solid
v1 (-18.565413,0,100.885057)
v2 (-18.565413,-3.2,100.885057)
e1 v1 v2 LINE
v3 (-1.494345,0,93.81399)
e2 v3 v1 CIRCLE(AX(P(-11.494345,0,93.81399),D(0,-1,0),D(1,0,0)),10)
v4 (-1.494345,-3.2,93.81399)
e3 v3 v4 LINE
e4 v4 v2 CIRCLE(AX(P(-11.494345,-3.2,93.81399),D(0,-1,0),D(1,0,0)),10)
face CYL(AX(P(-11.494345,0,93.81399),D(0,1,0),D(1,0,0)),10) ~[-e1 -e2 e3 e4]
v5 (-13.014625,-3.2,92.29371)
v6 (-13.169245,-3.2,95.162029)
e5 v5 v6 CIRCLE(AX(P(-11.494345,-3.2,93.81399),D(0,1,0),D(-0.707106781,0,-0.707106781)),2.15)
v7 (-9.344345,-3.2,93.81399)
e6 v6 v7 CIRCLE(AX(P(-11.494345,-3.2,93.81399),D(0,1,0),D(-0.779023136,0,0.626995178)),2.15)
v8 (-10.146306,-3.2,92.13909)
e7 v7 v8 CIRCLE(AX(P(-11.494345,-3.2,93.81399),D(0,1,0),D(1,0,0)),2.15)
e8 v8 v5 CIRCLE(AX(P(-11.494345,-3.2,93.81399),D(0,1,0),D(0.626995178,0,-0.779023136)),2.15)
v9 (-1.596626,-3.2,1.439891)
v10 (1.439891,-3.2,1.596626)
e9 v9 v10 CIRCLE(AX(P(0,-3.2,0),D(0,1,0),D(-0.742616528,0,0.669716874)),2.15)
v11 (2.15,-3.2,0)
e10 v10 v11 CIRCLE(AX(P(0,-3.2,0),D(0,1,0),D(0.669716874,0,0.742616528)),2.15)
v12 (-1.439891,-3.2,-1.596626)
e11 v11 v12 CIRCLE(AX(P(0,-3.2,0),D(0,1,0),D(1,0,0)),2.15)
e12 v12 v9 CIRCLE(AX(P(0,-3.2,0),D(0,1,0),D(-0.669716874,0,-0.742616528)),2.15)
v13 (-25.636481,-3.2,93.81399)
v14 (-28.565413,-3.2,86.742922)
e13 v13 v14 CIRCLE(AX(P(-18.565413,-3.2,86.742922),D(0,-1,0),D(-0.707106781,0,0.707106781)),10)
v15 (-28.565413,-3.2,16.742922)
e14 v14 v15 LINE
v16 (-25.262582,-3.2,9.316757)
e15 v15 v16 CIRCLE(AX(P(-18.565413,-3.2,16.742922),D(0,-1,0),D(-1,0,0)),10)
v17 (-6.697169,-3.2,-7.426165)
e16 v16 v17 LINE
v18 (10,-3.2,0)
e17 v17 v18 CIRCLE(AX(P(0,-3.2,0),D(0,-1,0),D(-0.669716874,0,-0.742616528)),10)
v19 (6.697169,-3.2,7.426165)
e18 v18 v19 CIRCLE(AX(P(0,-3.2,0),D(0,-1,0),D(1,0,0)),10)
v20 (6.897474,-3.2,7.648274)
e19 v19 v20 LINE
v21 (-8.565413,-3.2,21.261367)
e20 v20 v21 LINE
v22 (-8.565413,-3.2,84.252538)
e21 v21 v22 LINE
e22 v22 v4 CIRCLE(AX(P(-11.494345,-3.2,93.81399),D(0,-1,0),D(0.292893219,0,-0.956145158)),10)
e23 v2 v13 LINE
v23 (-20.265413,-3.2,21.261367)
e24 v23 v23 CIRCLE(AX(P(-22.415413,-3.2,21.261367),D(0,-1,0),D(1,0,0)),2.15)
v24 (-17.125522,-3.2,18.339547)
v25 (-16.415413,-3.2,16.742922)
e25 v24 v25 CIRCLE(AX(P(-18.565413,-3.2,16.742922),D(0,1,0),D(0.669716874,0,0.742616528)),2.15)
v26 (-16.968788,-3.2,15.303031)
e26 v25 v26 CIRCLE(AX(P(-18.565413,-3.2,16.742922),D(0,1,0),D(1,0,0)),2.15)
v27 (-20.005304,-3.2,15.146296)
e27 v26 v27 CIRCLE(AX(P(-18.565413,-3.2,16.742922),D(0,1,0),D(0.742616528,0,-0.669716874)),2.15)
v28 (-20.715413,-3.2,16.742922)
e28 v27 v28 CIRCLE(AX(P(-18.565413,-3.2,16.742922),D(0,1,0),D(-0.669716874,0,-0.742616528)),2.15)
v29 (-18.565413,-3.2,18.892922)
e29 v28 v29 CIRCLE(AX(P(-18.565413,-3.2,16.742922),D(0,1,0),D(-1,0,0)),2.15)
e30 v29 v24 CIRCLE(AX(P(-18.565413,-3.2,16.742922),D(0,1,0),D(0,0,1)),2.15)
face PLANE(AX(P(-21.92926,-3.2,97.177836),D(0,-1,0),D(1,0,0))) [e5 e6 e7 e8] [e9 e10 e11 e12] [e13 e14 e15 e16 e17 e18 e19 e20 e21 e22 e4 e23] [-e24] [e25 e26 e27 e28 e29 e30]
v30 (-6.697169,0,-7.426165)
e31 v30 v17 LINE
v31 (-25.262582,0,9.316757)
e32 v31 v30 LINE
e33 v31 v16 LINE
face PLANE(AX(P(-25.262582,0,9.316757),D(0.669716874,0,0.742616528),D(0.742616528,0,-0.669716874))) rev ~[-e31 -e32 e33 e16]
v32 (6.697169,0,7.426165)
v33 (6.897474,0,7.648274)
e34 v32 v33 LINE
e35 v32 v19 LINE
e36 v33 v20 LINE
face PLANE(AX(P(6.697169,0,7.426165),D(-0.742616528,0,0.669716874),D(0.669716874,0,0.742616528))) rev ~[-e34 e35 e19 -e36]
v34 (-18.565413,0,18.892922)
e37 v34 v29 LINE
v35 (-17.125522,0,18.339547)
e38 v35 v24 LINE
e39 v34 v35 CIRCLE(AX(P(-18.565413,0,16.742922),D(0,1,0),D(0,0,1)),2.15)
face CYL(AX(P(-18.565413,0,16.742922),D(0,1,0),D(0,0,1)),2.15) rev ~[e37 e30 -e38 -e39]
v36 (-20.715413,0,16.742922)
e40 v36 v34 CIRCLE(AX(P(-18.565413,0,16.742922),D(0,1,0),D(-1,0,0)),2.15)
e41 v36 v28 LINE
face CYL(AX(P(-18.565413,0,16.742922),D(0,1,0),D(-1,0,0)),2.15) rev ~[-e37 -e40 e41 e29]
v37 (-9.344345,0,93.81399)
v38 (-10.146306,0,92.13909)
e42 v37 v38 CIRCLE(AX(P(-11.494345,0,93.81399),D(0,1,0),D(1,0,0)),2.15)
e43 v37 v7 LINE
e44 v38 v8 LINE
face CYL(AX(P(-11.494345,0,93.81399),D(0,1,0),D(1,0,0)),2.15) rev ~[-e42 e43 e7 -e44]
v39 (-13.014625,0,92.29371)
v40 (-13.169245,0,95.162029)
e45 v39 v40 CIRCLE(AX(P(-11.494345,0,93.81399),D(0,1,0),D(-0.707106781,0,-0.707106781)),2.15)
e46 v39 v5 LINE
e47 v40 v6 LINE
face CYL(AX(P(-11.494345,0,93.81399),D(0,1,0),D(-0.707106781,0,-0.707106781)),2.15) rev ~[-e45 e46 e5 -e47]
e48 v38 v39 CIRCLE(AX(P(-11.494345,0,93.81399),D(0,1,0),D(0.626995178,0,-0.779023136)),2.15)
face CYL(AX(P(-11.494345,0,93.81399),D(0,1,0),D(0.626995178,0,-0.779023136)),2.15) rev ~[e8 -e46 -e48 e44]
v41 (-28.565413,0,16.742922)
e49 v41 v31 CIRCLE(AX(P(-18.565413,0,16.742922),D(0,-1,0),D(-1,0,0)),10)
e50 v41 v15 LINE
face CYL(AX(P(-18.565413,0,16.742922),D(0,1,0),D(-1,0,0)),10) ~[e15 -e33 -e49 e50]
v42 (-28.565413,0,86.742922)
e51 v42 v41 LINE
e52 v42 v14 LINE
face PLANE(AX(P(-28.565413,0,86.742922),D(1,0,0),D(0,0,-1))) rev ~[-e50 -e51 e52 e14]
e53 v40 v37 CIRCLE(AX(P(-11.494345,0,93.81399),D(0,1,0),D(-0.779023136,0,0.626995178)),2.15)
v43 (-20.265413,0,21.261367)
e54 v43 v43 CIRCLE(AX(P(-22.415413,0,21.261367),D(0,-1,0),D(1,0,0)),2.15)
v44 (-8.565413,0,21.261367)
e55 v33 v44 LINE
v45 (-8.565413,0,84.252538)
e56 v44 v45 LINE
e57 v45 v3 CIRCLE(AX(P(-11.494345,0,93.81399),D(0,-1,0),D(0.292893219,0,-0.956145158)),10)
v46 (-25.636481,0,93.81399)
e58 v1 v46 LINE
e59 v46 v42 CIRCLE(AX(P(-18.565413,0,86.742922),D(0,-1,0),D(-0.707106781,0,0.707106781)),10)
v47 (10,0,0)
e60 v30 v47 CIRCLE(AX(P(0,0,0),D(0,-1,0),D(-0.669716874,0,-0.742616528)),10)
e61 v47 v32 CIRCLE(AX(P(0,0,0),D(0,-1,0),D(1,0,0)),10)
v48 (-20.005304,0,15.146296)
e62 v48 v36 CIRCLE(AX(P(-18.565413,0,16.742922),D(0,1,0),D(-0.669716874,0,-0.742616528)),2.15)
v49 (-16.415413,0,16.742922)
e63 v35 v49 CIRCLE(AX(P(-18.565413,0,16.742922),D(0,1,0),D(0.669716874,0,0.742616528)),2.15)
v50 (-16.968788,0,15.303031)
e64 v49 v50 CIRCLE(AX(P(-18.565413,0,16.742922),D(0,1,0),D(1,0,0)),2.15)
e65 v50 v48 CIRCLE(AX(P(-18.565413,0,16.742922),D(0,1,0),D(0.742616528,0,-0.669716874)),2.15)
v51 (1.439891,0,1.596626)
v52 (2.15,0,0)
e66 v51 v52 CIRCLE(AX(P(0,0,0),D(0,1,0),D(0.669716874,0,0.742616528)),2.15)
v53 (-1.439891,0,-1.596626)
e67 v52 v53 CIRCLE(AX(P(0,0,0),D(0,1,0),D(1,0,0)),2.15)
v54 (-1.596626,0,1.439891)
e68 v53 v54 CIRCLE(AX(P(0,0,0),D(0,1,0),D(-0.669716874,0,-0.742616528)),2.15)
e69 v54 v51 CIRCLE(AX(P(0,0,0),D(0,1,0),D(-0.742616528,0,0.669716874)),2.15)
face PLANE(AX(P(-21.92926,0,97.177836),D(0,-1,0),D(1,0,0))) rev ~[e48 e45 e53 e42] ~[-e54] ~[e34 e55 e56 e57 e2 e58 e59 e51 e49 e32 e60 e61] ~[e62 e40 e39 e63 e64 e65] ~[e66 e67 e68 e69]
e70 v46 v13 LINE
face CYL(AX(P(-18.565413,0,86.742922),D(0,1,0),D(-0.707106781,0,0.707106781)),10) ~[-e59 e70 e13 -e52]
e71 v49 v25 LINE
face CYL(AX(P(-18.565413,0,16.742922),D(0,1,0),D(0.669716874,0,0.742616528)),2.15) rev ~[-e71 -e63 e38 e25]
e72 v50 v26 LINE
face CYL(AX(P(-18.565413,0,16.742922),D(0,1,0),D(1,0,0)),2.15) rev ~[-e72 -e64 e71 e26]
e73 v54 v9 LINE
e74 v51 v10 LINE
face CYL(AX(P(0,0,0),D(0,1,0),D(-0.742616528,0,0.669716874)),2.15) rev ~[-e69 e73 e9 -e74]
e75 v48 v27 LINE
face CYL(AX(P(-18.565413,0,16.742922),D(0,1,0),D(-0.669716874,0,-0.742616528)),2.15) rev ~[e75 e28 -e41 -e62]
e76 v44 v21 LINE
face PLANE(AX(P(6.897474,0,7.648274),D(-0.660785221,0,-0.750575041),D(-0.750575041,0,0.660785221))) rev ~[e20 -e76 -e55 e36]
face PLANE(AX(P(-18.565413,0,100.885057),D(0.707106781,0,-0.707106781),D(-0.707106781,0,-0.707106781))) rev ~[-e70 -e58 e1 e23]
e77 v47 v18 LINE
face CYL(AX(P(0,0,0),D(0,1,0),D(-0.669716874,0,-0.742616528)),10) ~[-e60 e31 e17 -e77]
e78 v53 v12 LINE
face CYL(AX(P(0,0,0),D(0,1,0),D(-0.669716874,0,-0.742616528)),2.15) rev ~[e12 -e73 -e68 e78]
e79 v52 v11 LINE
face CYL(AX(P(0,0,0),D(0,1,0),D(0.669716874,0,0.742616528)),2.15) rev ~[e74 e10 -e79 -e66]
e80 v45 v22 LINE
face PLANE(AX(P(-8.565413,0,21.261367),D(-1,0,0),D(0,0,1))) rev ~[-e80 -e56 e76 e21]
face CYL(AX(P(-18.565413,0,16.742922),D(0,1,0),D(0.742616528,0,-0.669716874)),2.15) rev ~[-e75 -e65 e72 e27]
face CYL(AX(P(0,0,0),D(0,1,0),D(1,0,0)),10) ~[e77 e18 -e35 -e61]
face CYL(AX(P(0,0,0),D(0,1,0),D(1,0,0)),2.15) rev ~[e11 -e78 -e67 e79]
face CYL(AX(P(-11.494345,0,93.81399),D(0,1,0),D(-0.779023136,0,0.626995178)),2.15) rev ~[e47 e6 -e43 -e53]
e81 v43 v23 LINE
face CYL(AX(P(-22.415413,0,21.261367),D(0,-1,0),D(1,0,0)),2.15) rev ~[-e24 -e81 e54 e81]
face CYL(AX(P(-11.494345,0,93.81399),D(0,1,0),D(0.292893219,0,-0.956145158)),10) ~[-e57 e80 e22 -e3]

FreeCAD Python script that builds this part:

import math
import FreeCAD as App
import Part
import Sketcher

V = App.Vector

doc = App.newDocument("Part")
params = doc.addObject("Spreadsheet::Sheet", "Params")
for row, (alias, value) in enumerate([
    ("sketch1_radius", "10 mm"),
    ("sketch1_height", "70 mm"),
    ("sketch1_radius2", "2.15 mm"),
    ("sketch1_length", "25 mm"),
    ("pad1_length", "3.2 mm"),
    ("sketch2_diameter", "4.3 mm"),
    ("pocket1_length", "25 mm"),
], start=1):
    params.set(f"A{row}", alias)
    params.set(f"B{row}", "=" + value)
    params.setAlias(f"B{row}", alias)

body = doc.addObject("PartDesign::Body", "Body")

# Sketch on XZ plane
sketch1 = body.newObject("Sketcher::SketchObject", "Sketch")
sketch1.AttachmentSupport = (doc.getObject("XZ_Plane"), [""])
sketch1.MapMode = "FlatFace"
sketch1.addGeometry([
    Part.LineSegment(V(-18.565413, 100.885057, 0), V(-25.636481, 93.81399, 0)),  # 0
    Part.ArcOfCircle(Part.Circle(V(-18.565413, 86.742922, 0), V(0, 0, 1), 10), math.radians(135), math.radians(180)),  # 1
    Part.LineSegment(V(-28.565413, 86.742922, 0), V(-28.565413, 16.742922, 0)),  # 2
    Part.ArcOfCircle(Part.Circle(V(-18.565413, 16.742922, 0), V(0, 0, 1), 10), math.radians(180), math.radians(227.954783)),  # 3
    Part.LineSegment(V(-25.262582, 9.316757, 0), V(-6.697169, -7.426165, 0)),  # 4
    Part.ArcOfCircle(Part.Circle(V(0, 0, 0), V(0, 0, 1), 10), math.radians(-132.045217), math.radians(0)),  # 5
    Part.ArcOfCircle(Part.Circle(V(0, 0, 0), V(0, 0, 1), 10), math.radians(0), math.radians(47.954783)),  # 6
    Part.LineSegment(V(6.697169, 7.426165, 0), V(6.897474, 7.648274, 0)),  # 7
    Part.LineSegment(V(6.897474, 7.648274, 0), V(-8.565413, 21.261367, 0)),  # 8
    Part.LineSegment(V(-8.565413, 21.261367, 0), V(-8.565413, 84.252538, 0)),  # 9
    Part.ArcOfCircle(Part.Circle(V(-11.494345, 93.81399, 0), V(0, 0, 1), 10), math.radians(-72.968752), math.radians(0)),  # 10
    Part.ArcOfCircle(Part.Circle(V(-11.494345, 93.81399, 0), V(0, 0, 1), 10), math.radians(0), math.radians(135)),  # 11
    Part.ArcOfCircle(Part.Circle(V(-18.565413, 16.742922, 0), V(0, 0, 1), 2.15), math.radians(-132.045217), math.radians(-42.045217)),  # 12
    Part.ArcOfCircle(Part.Circle(V(-18.565413, 16.742922, 0), V(0, 0, 1), 2.15), math.radians(180), math.radians(227.954783)),  # 13
    Part.ArcOfCircle(Part.Circle(V(-18.565413, 16.742922, 0), V(0, 0, 1), 2.15), math.radians(90), math.radians(180)),  # 14
    Part.ArcOfCircle(Part.Circle(V(-18.565413, 16.742922, 0), V(0, 0, 1), 2.15), math.radians(47.954783), math.radians(90)),  # 15
    Part.ArcOfCircle(Part.Circle(V(-18.565413, 16.742922, 0), V(0, 0, 1), 2.15), math.radians(0), math.radians(47.954783)),  # 16
    Part.ArcOfCircle(Part.Circle(V(-18.565413, 16.742922, 0), V(0, 0, 1), 2.15), math.radians(-42.045217), math.radians(0)),  # 17
    Part.ArcOfCircle(Part.Circle(V(-11.494345, 93.81399, 0), V(0, 0, 1), 2.15), math.radians(141.171221), math.radians(225)),  # 18
    Part.ArcOfCircle(Part.Circle(V(-11.494345, 93.81399, 0), V(0, 0, 1), 2.15), math.radians(0), math.radians(141.171221)),  # 19
    Part.ArcOfCircle(Part.Circle(V(-11.494345, 93.81399, 0), V(0, 0, 1), 2.15), math.radians(-51.171221), math.radians(0)),  # 20
    Part.ArcOfCircle(Part.Circle(V(-11.494345, 93.81399, 0), V(0, 0, 1), 2.15), math.radians(-135), math.radians(-51.171221)),  # 21
    Part.ArcOfCircle(Part.Circle(V(0, 0, 0), V(0, 0, 1), 2.15), math.radians(-132.045217), math.radians(0)),  # 22
    Part.ArcOfCircle(Part.Circle(V(0, 0, 0), V(0, 0, 1), 2.15), math.radians(137.954783), math.radians(227.954783)),  # 23
    Part.ArcOfCircle(Part.Circle(V(0, 0, 0), V(0, 0, 1), 2.15), math.radians(47.954783), math.radians(137.954783)),  # 24
    Part.ArcOfCircle(Part.Circle(V(0, 0, 0), V(0, 0, 1), 2.15), math.radians(0), math.radians(47.954783)),  # 25
], False)
sketch1.addConstraint([
    Sketcher.Constraint("Tangent", 0, 2, 1, 1),
    Sketcher.Constraint("Tangent", 1, 2, 2, 1),
    Sketcher.Constraint("Tangent", 2, 2, 3, 1),
    Sketcher.Constraint("Tangent", 3, 2, 4, 1),
    Sketcher.Constraint("Tangent", 4, 2, 5, 1),
    Sketcher.Constraint("Tangent", 5, 2, 6, 1),
    Sketcher.Constraint("Coincident", 6, 2, 7, 1),
    Sketcher.Constraint("Coincident", 7, 2, 8, 1),
    Sketcher.Constraint("Coincident", 8, 2, 9, 1),
    Sketcher.Constraint("Coincident", 9, 2, 10, 1),
    Sketcher.Constraint("Tangent", 10, 2, 11, 1),
    Sketcher.Constraint("Tangent", 11, 2, 0, 1),
    Sketcher.Constraint("Tangent", 12, 1, 13, 2),
    Sketcher.Constraint("Tangent", 13, 1, 14, 2),
    Sketcher.Constraint("Tangent", 14, 1, 15, 2),
    Sketcher.Constraint("Tangent", 15, 1, 16, 2),
    Sketcher.Constraint("Tangent", 16, 1, 17, 2),
    Sketcher.Constraint("Tangent", 17, 1, 12, 2),
    Sketcher.Constraint("Tangent", 18, 1, 19, 2),
    Sketcher.Constraint("Tangent", 19, 1, 20, 2),
    Sketcher.Constraint("Tangent", 20, 1, 21, 2),
    Sketcher.Constraint("Tangent", 21, 1, 18, 2),
    Sketcher.Constraint("Tangent", 22, 1, 23, 2),
    Sketcher.Constraint("Tangent", 23, 1, 24, 2),
    Sketcher.Constraint("Tangent", 24, 1, 25, 2),
    Sketcher.Constraint("Tangent", 25, 1, 22, 2),
    Sketcher.Constraint("Vertical", 2),
    Sketcher.Constraint("Vertical", 9),
    Sketcher.Constraint("Coincident", 5, 3, -1, 1),
    Sketcher.Constraint("Coincident", 22, 3, -1, 1),
    Sketcher.Constraint("Coincident", 12, 3, 3, 3),
    Sketcher.Constraint("Coincident", 14, 3, 3, 3),
    Sketcher.Constraint("Coincident", 18, 3, 10, 3),
    Sketcher.Constraint("Equal", 1, 3),
    Sketcher.Constraint("Equal", 3, 5),
    Sketcher.Constraint("Equal", 5, 6),
    Sketcher.Constraint("Equal", 6, 10),
    Sketcher.Constraint("Equal", 10, 11),
    Sketcher.Constraint("Equal", 14, 15),
    Sketcher.Constraint("Equal", 17, 18),
    Sketcher.Constraint("Equal", 18, 19),
    Sketcher.Constraint("Equal", 21, 22),
    Sketcher.Constraint("Equal", 22, 23),
    Sketcher.Constraint("PointOnObject", 5, 2, -1),
    Sketcher.Constraint("PointOnObject", 25, 1, -1),
    Sketcher.Constraint("Perpendicular", 4, 7),
    Sketcher.Constraint("Horizontal", 21, 3, 0, 2),
    Sketcher.Constraint("Horizontal", 0, 2, 10, 2),
    Sketcher.Constraint("Horizontal", 2, 2, 13, 1),
    Sketcher.Constraint("Horizontal", 13, 1, 16, 1),
    Sketcher.Constraint("Horizontal", 10, 2, 19, 1),
    Sketcher.Constraint("Vertical", 17, 3, 11, 2),
    Sketcher.Constraint("Vertical", 11, 2, 14, 1),
    Sketcher.Constraint("Radius", 1, 10.0),
    Sketcher.Constraint("DistanceY", 2, 2, 2, 1, 70.0),
    Sketcher.Constraint("Radius", 12, 2.15),
    Sketcher.Constraint("Distance", 4, 25.0),
    Sketcher.Constraint("DistanceX", 16, 3, 8, 2, 10.0),
    Sketcher.Constraint("DistanceY", 9, 1, 9, 2, 62.991171),
    Sketcher.Constraint("DistanceX", 18, 1, 10, 3, 1.6749),
    Sketcher.Constraint("DistanceY", 20, 1, 19, 1, 1.6749),
    Sketcher.Constraint("Distance", 7, 0.29909),
    Sketcher.Constraint("DistanceY", -1, 1, 1, 3, 86.742922),
    Sketcher.Constraint("DistanceX", -1, 1, 6, 2, 6.697169),
    Sketcher.Constraint("DistanceX", 15, 1, -1, 1, 17.125522),
    Sketcher.Constraint("DistanceY", -1, 1, 17, 1, 15.303031),
    Sketcher.Constraint("DistanceY", -1, 1, 21, 1, 92.29371),
    Sketcher.Constraint("DistanceX", 22, 1, -1, 1, 1.439891),
    Sketcher.Constraint("DistanceY", -1, 1, 23, 1, 1.439891),
    Sketcher.Constraint("DistanceX", -1, 1, 24, 1, 1.439891),
    Sketcher.Constraint("DistanceX", 12, 1, 3, 3, 1.439891),
])
sketch1.setExpression("Constraints[53]", "Params.sketch1_radius")
sketch1.setExpression("Constraints[54]", "Params.sketch1_height")
sketch1.setExpression("Constraints[55]", "Params.sketch1_radius2")
sketch1.setExpression("Constraints[56]", "Params.sketch1_length")
pad1 = body.newObject("PartDesign::Pad", "Pad")
pad1.Profile = sketch1
pad1.setExpression("Length", "Params.pad1_length")

# Sketch on XZ plane
sketch2 = body.newObject("Sketcher::SketchObject", "Sketch001")
sketch2.AttachmentSupport = (doc.getObject("XZ_Plane"), [""])
sketch2.MapMode = "FlatFace"
sketch2.addGeometry(Part.Circle(V(-22.415413, 21.261367, 0), V(0, 0, 1), 2.15), False)
sketch2.addConstraint([
    Sketcher.Constraint("Diameter", 0, 4.3),
    Sketcher.Constraint("DistanceX", 0, 3, -1, 1, 22.415413),
    Sketcher.Constraint("DistanceY", -1, 1, 0, 3, 21.261367),
])
sketch2.setExpression("Constraints[0]", "Params.sketch2_diameter")
pocket1 = body.newObject("PartDesign::Pocket", "Pocket")
pocket1.Profile = sketch2
pocket1.setExpression("Length", "Params.pocket1_length")
pocket1.Midplane = True

doc.recompute()
